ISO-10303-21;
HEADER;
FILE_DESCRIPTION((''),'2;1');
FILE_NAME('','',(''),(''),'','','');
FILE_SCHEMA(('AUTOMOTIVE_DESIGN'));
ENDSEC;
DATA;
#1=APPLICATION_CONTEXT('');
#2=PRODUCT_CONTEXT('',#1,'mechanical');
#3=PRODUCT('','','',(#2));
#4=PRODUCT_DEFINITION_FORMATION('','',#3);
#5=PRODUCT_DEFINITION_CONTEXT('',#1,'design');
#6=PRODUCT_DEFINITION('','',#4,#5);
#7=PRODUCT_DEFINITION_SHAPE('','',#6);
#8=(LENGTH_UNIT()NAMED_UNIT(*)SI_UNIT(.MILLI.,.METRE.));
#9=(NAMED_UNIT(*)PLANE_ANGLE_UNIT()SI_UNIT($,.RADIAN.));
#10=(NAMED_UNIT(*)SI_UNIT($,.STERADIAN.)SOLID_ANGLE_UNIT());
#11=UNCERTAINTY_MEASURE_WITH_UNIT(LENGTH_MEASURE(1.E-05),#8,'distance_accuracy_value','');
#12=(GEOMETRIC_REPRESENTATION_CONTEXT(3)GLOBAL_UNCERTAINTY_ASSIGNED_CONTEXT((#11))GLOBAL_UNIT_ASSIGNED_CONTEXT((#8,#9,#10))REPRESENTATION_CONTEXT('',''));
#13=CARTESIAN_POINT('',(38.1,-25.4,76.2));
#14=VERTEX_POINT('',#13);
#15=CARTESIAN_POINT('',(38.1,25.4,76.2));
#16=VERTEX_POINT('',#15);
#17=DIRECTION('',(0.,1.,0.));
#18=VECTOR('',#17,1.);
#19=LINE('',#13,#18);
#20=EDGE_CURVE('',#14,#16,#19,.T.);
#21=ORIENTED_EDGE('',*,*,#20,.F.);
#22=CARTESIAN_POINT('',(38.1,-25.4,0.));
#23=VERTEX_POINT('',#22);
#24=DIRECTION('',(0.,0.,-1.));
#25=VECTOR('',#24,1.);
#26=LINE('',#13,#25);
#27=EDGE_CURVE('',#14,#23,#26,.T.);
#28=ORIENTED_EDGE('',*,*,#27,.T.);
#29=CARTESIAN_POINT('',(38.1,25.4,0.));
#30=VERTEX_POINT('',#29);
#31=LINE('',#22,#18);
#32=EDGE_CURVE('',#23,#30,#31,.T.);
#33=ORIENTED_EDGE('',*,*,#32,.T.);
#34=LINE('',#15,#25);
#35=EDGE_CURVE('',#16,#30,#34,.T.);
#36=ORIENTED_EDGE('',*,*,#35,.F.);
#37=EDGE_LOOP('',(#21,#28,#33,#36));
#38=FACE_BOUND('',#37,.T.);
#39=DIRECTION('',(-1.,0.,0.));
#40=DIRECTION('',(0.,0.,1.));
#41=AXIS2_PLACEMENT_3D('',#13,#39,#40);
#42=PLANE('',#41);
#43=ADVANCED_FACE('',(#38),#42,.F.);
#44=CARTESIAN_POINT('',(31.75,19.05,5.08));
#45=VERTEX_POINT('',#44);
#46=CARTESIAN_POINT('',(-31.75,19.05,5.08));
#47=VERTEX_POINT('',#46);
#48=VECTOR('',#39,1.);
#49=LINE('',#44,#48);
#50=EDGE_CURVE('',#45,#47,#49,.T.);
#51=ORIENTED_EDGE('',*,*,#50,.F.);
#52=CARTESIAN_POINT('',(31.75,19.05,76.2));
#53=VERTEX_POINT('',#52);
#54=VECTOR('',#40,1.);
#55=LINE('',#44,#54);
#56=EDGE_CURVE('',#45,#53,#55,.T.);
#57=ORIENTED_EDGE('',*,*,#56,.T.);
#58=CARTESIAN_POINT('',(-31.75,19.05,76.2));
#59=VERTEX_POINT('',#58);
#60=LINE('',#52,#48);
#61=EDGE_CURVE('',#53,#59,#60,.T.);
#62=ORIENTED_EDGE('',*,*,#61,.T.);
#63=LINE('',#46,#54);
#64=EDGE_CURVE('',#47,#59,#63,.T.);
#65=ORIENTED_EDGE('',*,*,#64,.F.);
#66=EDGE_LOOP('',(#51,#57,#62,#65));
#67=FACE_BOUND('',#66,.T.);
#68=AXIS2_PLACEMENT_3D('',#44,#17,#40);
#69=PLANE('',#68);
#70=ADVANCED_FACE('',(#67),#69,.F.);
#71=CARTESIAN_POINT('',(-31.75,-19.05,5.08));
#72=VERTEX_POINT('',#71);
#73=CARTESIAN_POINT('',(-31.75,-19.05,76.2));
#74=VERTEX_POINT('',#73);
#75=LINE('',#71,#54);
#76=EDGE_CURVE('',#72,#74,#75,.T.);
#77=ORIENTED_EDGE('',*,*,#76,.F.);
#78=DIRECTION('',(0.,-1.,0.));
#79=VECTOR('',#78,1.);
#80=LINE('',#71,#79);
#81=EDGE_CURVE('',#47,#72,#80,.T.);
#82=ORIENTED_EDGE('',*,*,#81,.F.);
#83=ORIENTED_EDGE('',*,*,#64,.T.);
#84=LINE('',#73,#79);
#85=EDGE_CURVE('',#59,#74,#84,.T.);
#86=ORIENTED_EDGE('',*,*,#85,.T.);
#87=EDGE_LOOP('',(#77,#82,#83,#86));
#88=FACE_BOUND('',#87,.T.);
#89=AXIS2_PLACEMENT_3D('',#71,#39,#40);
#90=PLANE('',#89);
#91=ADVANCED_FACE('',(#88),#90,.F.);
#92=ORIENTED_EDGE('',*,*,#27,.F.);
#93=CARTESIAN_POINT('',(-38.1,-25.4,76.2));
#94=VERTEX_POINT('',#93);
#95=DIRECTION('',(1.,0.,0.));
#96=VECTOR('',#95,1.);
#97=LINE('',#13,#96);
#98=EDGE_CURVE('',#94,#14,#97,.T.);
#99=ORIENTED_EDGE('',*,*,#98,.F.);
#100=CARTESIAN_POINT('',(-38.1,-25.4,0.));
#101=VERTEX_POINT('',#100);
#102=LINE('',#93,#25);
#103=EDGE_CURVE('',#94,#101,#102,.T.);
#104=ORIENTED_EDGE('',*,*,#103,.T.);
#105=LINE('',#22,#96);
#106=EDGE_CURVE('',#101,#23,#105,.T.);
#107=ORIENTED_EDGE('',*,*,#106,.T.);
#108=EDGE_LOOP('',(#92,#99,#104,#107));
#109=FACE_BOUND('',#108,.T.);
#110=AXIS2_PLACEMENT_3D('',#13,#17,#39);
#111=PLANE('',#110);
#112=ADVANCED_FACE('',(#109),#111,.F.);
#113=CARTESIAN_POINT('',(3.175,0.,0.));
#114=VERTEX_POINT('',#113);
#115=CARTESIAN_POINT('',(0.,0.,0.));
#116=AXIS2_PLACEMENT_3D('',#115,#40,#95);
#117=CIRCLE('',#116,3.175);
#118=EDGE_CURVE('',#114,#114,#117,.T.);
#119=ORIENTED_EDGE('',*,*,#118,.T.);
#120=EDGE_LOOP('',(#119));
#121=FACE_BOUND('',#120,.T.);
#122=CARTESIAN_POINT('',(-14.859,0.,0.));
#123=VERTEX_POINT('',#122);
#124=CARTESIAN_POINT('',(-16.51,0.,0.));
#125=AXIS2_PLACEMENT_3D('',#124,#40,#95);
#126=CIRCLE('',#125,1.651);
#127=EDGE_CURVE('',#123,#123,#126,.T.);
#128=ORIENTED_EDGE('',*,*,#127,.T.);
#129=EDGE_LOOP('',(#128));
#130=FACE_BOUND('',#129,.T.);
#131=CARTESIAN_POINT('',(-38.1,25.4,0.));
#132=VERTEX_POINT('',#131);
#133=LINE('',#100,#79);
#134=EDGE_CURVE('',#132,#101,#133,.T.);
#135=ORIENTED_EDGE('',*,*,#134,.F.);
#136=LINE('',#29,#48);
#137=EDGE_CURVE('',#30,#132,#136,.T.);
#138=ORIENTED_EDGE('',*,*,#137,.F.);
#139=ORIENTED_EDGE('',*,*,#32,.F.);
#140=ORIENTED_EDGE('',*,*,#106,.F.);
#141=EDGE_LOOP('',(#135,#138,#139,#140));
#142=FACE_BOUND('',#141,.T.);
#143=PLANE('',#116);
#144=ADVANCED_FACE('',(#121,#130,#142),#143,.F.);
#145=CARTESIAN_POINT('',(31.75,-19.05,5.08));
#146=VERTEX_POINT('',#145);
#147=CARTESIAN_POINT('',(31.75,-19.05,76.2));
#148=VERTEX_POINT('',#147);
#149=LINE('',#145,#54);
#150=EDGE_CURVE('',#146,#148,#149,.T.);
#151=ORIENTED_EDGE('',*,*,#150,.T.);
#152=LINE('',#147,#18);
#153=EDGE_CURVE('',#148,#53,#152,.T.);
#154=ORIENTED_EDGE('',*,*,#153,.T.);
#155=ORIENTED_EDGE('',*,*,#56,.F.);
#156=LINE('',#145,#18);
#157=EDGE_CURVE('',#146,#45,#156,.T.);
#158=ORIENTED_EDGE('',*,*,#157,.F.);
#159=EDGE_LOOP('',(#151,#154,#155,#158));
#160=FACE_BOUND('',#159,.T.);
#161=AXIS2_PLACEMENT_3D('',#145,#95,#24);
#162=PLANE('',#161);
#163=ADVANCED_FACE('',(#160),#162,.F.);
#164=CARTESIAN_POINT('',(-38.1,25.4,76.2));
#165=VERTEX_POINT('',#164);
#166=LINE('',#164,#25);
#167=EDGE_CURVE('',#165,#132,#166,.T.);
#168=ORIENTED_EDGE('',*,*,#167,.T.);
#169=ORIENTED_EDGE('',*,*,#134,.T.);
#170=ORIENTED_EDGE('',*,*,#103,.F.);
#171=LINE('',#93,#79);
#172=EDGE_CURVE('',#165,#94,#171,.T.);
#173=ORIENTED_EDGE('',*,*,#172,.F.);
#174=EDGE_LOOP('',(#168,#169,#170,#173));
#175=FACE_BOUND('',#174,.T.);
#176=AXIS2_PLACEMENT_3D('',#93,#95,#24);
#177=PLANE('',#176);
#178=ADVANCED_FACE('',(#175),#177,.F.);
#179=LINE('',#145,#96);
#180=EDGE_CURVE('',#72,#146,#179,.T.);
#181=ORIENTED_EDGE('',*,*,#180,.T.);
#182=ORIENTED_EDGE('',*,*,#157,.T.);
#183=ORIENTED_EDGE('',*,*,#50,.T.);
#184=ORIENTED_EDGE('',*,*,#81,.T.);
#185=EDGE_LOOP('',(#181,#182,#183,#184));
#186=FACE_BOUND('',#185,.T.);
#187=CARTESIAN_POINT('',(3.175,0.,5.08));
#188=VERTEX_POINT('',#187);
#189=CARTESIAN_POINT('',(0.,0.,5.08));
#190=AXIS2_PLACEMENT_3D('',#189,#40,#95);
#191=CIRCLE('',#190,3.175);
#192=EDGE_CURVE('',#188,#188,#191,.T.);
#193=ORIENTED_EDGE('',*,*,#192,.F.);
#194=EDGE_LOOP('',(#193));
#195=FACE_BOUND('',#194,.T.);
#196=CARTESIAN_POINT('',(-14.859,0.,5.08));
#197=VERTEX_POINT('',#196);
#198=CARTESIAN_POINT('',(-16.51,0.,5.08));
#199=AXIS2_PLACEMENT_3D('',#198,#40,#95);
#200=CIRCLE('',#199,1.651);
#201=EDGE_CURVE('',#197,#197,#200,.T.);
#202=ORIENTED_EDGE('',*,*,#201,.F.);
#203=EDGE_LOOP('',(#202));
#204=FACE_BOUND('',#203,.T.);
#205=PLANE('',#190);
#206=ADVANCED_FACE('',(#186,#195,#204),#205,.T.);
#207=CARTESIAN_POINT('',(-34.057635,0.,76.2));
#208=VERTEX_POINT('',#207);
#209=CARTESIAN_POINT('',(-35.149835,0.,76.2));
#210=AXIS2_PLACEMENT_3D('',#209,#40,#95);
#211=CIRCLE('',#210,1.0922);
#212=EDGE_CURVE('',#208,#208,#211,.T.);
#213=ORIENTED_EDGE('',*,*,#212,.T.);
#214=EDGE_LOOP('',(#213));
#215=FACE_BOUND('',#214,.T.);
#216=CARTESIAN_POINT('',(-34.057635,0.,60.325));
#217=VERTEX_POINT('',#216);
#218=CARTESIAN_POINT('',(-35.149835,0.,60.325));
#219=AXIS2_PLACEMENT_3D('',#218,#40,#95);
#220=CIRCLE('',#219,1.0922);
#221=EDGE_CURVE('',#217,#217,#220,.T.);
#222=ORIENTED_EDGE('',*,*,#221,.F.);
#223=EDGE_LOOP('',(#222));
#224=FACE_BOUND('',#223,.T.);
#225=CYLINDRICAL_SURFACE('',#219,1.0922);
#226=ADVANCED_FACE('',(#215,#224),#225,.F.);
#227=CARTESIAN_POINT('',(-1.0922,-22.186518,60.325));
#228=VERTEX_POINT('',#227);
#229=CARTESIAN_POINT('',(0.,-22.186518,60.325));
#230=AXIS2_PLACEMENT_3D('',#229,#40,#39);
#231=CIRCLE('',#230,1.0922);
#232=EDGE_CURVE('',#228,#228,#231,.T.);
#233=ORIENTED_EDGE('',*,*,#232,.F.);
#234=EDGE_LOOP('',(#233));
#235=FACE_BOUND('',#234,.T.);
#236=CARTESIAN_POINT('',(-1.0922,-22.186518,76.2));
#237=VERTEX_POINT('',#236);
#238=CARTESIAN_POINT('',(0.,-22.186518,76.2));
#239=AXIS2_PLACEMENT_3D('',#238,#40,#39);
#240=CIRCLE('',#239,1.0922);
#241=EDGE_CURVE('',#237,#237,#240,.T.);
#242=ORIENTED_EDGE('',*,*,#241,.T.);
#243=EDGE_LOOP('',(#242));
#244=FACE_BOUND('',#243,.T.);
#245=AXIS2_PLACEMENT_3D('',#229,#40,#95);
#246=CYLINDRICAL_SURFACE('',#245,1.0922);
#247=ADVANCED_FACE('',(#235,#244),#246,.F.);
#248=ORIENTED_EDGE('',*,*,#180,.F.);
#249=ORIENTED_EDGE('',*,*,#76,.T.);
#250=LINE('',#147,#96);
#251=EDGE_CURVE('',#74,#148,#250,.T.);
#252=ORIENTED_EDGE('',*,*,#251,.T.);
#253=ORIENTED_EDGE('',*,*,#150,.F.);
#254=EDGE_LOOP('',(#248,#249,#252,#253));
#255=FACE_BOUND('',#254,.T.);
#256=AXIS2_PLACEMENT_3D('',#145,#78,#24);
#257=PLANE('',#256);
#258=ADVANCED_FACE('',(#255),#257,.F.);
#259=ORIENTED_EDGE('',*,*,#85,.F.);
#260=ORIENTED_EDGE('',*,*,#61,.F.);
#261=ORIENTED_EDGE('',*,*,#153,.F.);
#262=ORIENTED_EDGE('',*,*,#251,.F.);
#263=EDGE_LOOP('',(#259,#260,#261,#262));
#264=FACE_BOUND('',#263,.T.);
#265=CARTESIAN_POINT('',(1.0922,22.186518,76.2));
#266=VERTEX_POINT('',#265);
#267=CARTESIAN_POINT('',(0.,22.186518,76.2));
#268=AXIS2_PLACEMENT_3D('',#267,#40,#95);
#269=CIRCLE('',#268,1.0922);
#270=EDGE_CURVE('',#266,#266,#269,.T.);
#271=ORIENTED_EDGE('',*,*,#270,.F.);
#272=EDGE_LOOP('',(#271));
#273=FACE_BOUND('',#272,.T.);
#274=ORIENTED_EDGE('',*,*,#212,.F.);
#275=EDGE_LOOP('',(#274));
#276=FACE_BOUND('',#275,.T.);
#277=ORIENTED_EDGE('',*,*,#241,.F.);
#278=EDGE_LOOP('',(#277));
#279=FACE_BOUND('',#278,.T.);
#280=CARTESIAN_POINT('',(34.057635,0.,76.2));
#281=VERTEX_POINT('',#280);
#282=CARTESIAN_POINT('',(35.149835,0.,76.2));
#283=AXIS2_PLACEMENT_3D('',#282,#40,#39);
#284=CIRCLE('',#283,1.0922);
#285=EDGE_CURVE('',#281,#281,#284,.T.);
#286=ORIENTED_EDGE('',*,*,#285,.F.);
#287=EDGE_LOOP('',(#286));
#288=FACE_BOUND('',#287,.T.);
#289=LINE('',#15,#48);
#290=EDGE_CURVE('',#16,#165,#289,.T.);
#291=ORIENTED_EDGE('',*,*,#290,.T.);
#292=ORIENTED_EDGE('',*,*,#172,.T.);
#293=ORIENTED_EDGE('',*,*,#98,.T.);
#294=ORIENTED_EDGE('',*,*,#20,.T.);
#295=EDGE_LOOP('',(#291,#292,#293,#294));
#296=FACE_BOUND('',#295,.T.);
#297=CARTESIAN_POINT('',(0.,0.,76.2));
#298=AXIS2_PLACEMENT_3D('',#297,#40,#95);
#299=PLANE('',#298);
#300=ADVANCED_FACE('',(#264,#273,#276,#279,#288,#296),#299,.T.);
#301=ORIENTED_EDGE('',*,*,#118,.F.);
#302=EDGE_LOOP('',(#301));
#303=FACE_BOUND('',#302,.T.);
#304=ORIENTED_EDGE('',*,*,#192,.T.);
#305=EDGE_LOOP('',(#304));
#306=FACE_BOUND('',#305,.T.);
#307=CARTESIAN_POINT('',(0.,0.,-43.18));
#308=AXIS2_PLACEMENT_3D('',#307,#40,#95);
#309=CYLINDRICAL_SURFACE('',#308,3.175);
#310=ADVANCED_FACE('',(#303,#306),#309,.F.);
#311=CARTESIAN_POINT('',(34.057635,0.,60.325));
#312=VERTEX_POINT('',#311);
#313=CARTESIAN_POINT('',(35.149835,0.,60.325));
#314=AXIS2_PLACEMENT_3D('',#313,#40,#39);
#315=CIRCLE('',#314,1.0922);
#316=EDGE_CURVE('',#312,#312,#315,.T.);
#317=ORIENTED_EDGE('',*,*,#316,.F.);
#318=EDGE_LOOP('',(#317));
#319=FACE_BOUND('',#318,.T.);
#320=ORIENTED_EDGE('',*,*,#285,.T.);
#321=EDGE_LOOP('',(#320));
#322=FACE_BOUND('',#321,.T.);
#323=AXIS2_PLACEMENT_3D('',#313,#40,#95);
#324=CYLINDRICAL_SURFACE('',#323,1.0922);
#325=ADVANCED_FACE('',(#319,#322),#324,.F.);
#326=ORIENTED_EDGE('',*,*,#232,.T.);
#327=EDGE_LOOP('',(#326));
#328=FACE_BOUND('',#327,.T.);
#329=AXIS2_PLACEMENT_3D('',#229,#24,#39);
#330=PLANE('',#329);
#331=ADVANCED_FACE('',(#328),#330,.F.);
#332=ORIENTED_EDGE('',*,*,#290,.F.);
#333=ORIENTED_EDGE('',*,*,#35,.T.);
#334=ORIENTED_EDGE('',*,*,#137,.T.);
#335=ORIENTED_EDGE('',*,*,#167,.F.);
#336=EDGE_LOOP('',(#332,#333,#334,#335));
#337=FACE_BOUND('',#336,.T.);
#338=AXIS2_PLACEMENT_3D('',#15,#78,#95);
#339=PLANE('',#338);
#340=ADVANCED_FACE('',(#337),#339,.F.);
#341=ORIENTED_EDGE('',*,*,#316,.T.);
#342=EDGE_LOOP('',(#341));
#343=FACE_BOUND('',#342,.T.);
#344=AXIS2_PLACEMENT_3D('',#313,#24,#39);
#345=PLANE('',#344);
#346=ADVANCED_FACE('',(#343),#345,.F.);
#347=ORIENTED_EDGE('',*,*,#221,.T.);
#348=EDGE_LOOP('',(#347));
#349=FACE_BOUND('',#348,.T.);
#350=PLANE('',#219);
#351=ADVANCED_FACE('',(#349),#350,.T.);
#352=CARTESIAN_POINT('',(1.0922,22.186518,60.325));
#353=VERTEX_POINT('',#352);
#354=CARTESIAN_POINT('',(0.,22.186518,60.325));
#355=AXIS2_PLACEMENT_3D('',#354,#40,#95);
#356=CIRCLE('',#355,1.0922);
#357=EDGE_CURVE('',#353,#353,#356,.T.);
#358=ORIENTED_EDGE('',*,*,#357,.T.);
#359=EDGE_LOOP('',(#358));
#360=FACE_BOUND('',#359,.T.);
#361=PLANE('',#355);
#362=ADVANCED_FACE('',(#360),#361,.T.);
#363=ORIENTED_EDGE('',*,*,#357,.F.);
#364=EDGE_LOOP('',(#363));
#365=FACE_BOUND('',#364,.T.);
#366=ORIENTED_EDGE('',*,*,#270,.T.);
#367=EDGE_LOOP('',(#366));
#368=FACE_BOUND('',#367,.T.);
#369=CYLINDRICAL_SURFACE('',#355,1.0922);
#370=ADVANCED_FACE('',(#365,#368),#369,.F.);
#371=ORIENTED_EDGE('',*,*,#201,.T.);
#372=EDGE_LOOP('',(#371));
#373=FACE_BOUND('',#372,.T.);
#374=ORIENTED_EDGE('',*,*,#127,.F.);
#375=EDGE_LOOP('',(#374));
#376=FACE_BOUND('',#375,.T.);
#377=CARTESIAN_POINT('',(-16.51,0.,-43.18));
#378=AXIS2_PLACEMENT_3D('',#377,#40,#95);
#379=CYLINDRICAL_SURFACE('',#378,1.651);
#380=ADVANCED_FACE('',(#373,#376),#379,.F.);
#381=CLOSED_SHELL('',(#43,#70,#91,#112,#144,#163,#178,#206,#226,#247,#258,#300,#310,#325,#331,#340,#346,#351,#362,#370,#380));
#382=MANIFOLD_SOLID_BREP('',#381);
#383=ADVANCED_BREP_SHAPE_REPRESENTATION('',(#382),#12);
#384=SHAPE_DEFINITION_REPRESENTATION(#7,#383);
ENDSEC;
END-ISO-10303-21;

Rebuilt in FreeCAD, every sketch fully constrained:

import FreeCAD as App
import Part
import Sketcher

V = App.Vector
Q = App.Units.Quantity

doc = App.newDocument("Part")
body = doc.addObject("PartDesign::Body", "Body")

sketch1 = body.newObject("Sketcher::SketchObject", "Sketch")
sketch1.AttachmentSupport = (doc.getObject("XY_Plane"), [""])
sketch1.MapMode = "FlatFace"
sketch1.addGeometry(Part.LineSegment(V(-38.1, 25.4, 0), V(-38.1, -25.4, 0)), False)
sketch1.addGeometry(Part.LineSegment(V(-38.1, -25.4, 0), V(38.1, -25.4, 0)), False)
sketch1.addGeometry(Part.LineSegment(V(38.1, -25.4, 0), V(38.1, 25.4, 0)), False)
sketch1.addGeometry(Part.LineSegment(V(38.1, 25.4, 0), V(-38.1, 25.4, 0)), False)
sketch1.addConstraint(Sketcher.Constraint("Coincident", 0, 2, 1, 1))
sketch1.addConstraint(Sketcher.Constraint("Coincident", 1, 2, 2, 1))
sketch1.addConstraint(Sketcher.Constraint("Coincident", 2, 2, 3, 1))
sketch1.addConstraint(Sketcher.Constraint("Coincident", 3, 2, 0, 1))
sketch1.addConstraint(Sketcher.Constraint("Vertical", 0))
sketch1.addConstraint(Sketcher.Constraint("Horizontal", 1))
sketch1.addConstraint(Sketcher.Constraint("Vertical", 2))
sketch1.addConstraint(Sketcher.Constraint("Horizontal", 3))
sketch1.addConstraint(Sketcher.Constraint("Symmetric", 0, 2, 2, 2, -1, 1))
sketch1.addConstraint(Sketcher.Constraint("DistanceX", 1, 1, 1, 2, Q("3 in")))
sketch1.addConstraint(Sketcher.Constraint("DistanceY", 0, 2, 0, 1, Q("2 in")))
pad1 = body.newObject("PartDesign::Pad", "Pad")
pad1.Profile = sketch1
pad1.Length = Q("3 in")

sketch2 = body.newObject("Sketcher::SketchObject", "Sketch001")
sketch2.AttachmentSupport = (doc.getObject("XY_Plane"), [""])
sketch2.MapMode = "FlatFace"
sketch2.AttachmentOffset = App.Placement(V(0, 0, 3 * 25.4), App.Rotation())
sketch2.addGeometry(Part.LineSegment(V(-31.75, 19.05, 0), V(-31.75, -19.05, 0)), False)
sketch2.addGeometry(Part.LineSegment(V(-31.75, -19.05, 0), V(31.75, -19.05, 0)), False)
sketch2.addGeometry(Part.LineSegment(V(31.75, -19.05, 0), V(31.75, 19.05, 0)), False)
sketch2.addGeometry(Part.LineSegment(V(31.75, 19.05, 0), V(-31.75, 19.05, 0)), False)
sketch2.addConstraint(Sketcher.Constraint("Coincident", 0, 2, 1, 1))
sketch2.addConstraint(Sketcher.Constraint("Coincident", 1, 2, 2, 1))
sketch2.addConstraint(Sketcher.Constraint("Coincident", 2, 2, 3, 1))
sketch2.addConstraint(Sketcher.Constraint("Coincident", 3, 2, 0, 1))
sketch2.addConstraint(Sketcher.Constraint("Vertical", 0))
sketch2.addConstraint(Sketcher.Constraint("Horizontal", 1))
sketch2.addConstraint(Sketcher.Constraint("Vertical", 2))
sketch2.addConstraint(Sketcher.Constraint("Horizontal", 3))
sketch2.addConstraint(Sketcher.Constraint("Symmetric", 0, 2, 2, 2, -1, 1))
sketch2.addConstraint(Sketcher.Constraint("DistanceX", 1, 1, 1, 2, Q("2.5 in")))
sketch2.addConstraint(Sketcher.Constraint("DistanceY", 0, 2, 0, 1, Q("1.5 in")))
pocket1 = body.newObject("PartDesign::Pocket", "Pocket")
pocket1.Profile = sketch2
pocket1.Length = Q("2.8 in")

sketch3 = body.newObject("Sketcher::SketchObject", "Sketch002")
sketch3.AttachmentSupport = (doc.getObject("XY_Plane"), [""])
sketch3.MapMode = "FlatFace"
sketch3.AttachmentOffset = App.Placement(V(0, 0, 0.2 * 25.4), App.Rotation())
sketch3.addGeometry(Part.Circle(V(0, 0, 0), V(0, 0, 1), 3.175), False)
sketch3.addGeometry(Part.Circle(V(-16.51, 0, 0), V(0, 0, 1), 1.651), False)
sketch3.addConstraint(Sketcher.Constraint("Coincident", 0, 3, -1, 1))
sketch3.addConstraint(Sketcher.Constraint("PointOnObject", 1, 3, -1))
sketch3.addConstraint(Sketcher.Constraint("Diameter", 0, Q("0.25 in")))
sketch3.addConstraint(Sketcher.Constraint("Diameter", 1, Q("0.13 in")))
sketch3.addConstraint(Sketcher.Constraint("DistanceX", 1, 3, -1, 1, Q("0.65 in")))
pocket2 = body.newObject("PartDesign::Pocket", "Pocket001")
pocket2.Profile = sketch3
pocket2.Length = Q("1.9 in")

sketch4 = body.newObject("Sketcher::SketchObject", "Sketch003")
sketch4.AttachmentSupport = (doc.getObject("XY_Plane"), [""])
sketch4.MapMode = "FlatFace"
sketch4.AttachmentOffset = App.Placement(V(0, 0, 3 * 25.4), App.Rotation())
sketch4.addGeometry(Part.Circle(V(-35.149835, 0, 0), V(0, 0, 1), 1.0922), False)
sketch4.addGeometry(Part.Circle(V(35.149835, 0, 0), V(0, 0, 1), 1.0922), False)
sketch4.addGeometry(Part.Circle(V(0, 22.186518, 0), V(0, 0, 1), 1.0922), False)
sketch4.addGeometry(Part.Circle(V(0, -22.186518, 0), V(0, 0, 1), 1.0922), False)
sketch4.addConstraint(Sketcher.Constraint("Equal", 0, 1))
sketch4.addConstraint(Sketcher.Constraint("Equal", 1, 2))
sketch4.addConstraint(Sketcher.Constraint("Equal", 2, 3))
sketch4.addConstraint(Sketcher.Constraint("Symmetric", 0, 3, 1, 3, -1, 1))
sketch4.addConstraint(Sketcher.Constraint("Symmetric", 2, 3, 3, 3, -1, 1))
sketch4.addConstraint(Sketcher.Constraint("PointOnObject", 0, 3, -1))
sketch4.addConstraint(Sketcher.Constraint("PointOnObject", 2, 3, -2))
sketch4.addConstraint(Sketcher.Constraint("Diameter", 0, Q("0.086 in")))
sketch4.addConstraint(Sketcher.Constraint("DistanceX", 0, 3, 1, 3, 70.299671))
sketch4.addConstraint(Sketcher.Constraint("DistanceY", -1, 1, 2, 3, 22.186518))
pocket3 = body.newObject("PartDesign::Pocket", "Pocket002")
pocket3.Profile = sketch4
pocket3.Length = Q("0.625 in")

doc.recompute()
